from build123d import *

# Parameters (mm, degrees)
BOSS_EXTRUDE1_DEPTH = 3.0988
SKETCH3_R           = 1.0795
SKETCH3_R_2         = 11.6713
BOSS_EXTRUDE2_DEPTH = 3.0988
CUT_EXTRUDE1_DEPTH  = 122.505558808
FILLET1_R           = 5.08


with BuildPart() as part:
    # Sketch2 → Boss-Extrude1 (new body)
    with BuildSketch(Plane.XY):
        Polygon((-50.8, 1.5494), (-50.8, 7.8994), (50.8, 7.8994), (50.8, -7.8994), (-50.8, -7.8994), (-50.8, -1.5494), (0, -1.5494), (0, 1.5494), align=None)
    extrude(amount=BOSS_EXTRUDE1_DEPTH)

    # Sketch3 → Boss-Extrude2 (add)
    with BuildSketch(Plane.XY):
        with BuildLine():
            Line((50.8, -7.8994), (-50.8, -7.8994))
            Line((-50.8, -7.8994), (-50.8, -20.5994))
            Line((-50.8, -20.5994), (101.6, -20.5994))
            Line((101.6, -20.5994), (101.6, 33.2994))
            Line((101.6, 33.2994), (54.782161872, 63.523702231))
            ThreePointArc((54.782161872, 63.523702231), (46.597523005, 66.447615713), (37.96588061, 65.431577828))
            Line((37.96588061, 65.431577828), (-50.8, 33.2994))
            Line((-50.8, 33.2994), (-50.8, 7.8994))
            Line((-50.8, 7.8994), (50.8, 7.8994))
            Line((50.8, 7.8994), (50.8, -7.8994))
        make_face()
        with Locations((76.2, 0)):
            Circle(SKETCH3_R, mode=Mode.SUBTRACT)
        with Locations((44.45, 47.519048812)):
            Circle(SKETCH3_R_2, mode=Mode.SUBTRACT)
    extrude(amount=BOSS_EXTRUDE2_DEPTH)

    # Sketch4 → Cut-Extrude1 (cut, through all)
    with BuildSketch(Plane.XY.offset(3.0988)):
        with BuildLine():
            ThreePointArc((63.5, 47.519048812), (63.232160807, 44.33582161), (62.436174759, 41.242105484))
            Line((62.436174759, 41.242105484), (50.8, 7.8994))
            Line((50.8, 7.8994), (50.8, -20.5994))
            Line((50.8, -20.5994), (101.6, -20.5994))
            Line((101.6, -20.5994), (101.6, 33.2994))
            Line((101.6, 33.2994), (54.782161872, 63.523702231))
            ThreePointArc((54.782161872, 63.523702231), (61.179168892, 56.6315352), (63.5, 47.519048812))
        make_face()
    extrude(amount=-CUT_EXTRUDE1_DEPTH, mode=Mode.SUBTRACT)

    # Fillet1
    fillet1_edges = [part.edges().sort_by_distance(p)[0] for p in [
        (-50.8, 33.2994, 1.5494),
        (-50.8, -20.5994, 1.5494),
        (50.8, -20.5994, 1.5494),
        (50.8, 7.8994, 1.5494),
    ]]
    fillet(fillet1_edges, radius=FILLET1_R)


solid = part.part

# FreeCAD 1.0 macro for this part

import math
import FreeCAD as App
import Part
import Sketcher
Q = App.Units.Quantity


def edges_at(feature, points):
    """Names of the edges that pass closest to the given points."""
    edges = feature.Shape.Edges
    near = lambda p: min(range(len(edges)), key=lambda i: edges[i].distToShape(Part.Vertex(*p))[0])
    return sorted({f"Edge{near(p) + 1}" for p in points})

doc = App.newDocument("Part")
body = doc.addObject("PartDesign::Body", "Body")

# Sketch on XY plane
sketch1 = doc.addObject("Sketcher::SketchObject", "Sketch")
body.addObject(sketch1)
sketch1.AttachmentSupport = (doc.XY_Plane, [""])
sketch1.MapMode = "FlatFace"
sketch1.addGeometry(Part.LineSegment(App.Vector(-50.8, 7.9, 0), App.Vector(-50.8, 1.5, 0)), False)
sketch1.addGeometry(Part.LineSegment(App.Vector(-50.8, 1.5, 0), App.Vector(0, 1.5, 0)), False)
sketch1.addGeometry(Part.LineSegment(App.Vector(0, 1.5, 0), App.Vector(0, -1.5, 0)), False)
sketch1.addGeometry(Part.LineSegment(App.Vector(0, -1.5, 0), App.Vector(-50.8, -1.5, 0)), False)
sketch1.addGeometry(Part.LineSegment(App.Vector(-50.8, -1.5, 0), App.Vector(-50.8, -7.9, 0)), False)
sketch1.addGeometry(Part.LineSegment(App.Vector(-50.8, -7.9, 0), App.Vector(50.8, -7.9, 0)), False)
sketch1.addGeometry(Part.LineSegment(App.Vector(50.8, -7.9, 0), App.Vector(50.8, 7.9, 0)), False)
sketch1.addGeometry(Part.LineSegment(App.Vector(50.8, 7.9, 0), App.Vector(-50.8, 7.9, 0)), False)
sketch1.addConstraint(Sketcher.Constraint("Coincident", 0, 2, 1, 1))
sketch1.addConstraint(Sketcher.Constraint("Coincident", 1, 2, 2, 1))
sketch1.addConstraint(Sketcher.Constraint("Coincident", 2, 2, 3, 1))
sketch1.addConstraint(Sketcher.Constraint("Coincident", 3, 2, 4, 1))
sketch1.addConstraint(Sketcher.Constraint("Coincident", 4, 2, 5, 1))
sketch1.addConstraint(Sketcher.Constraint("Coincident", 5, 2, 6, 1))
sketch1.addConstraint(Sketcher.Constraint("Coincident", 6, 2, 7, 1))
sketch1.addConstraint(Sketcher.Constraint("Coincident", 7, 2, 0, 1))
sketch1.addConstraint(Sketcher.Constraint("Vertical", 0))
sketch1.addConstraint(Sketcher.Constraint("Horizontal", 1))
sketch1.addConstraint(Sketcher.Constraint("Vertical", 2))
sketch1.addConstraint(Sketcher.Constraint("Horizontal", 3))
sketch1.addConstraint(Sketcher.Constraint("Vertical", 4))
sketch1.addConstraint(Sketcher.Constraint("Horizontal", 5))
sketch1.addConstraint(Sketcher.Constraint("Vertical", 6))
sketch1.addConstraint(Sketcher.Constraint("Horizontal", 7))
sketch1.addConstraint(Sketcher.Constraint("Symmetric", 1, 2, 2, 2, -1, 1))
sketch1.addConstraint(Sketcher.Constraint("Symmetric", 4, 2, 6, 2, -1, 1))
sketch1.addConstraint(Sketcher.Constraint("Vertical", 0, 2, 3, 2))
sketch1.addConstraint(Sketcher.Constraint("DistanceX", 1, 1, 1, 2, Q("2 in")))
sketch1.addConstraint(Sketcher.Constraint("DistanceY", 0, 2, 0, 1, Q("0.25 in")))
sketch1.addConstraint(Sketcher.Constraint("DistanceY", 2, 2, 2, 1, Q("0.122 in")))
pad1 = doc.addObject("PartDesign::Pad", "Pad")
body.addObject(pad1)
pad1.Profile = sketch1
pad1.Length = Q("0.122 in")

# Sketch on XY plane
sketch2 = doc.addObject("Sketcher::SketchObject", "Sketch001")
body.addObject(sketch2)
sketch2.AttachmentSupport = (doc.XY_Plane, [""])
sketch2.MapMode = "FlatFace"
sketch2.addGeometry(Part.LineSegment(App.Vector(50.8, -7.9, 0), App.Vector(-50.8, -7.9, 0)), False)
sketch2.addGeometry(Part.LineSegment(App.Vector(-50.8, -7.9, 0), App.Vector(-50.8, -20.6, 0)), False)
sketch2.addGeometry(Part.LineSegment(App.Vector(-50.8, -20.6, 0), App.Vector(101.6, -20.6, 0)), False)
sketch2.addGeometry(Part.LineSegment(App.Vector(101.6, -20.6, 0), App.Vector(101.6, 33.3, 0)), False)
sketch2.addGeometry(Part.LineSegment(App.Vector(101.6, 33.3, 0), App.Vector(54.8, 63.5, 0)), False)
sketch2.addGeometry(Part.ArcOfCircle(Part.Circle(App.Vector(44.4, 47.5, 0), App.Vector(0, 0, 1), 19.1), math.radians(57), math.radians(110)), False)
sketch2.addGeometry(Part.LineSegment(App.Vector(38, 65.4, 0), App.Vector(-50.8, 33.3, 0)), False)
sketch2.addGeometry(Part.LineSegment(App.Vector(-50.8, 33.3, 0), App.Vector(-50.8, 7.9, 0)), False)
sketch2.addGeometry(Part.LineSegment(App.Vector(-50.8, 7.9, 0), App.Vector(50.8, 7.9, 0)), False)
sketch2.addGeometry(Part.LineSegment(App.Vector(50.8, 7.9, 0), App.Vector(50.8, -7.9, 0)), False)
sketch2.addGeometry(Part.Circle(App.Vector(76.2, 0, 0), App.Vector(0, 0, 1), 1.1), False)
sketch2.addGeometry(Part.Circle(App.Vector(44.5, 47.5, 0), App.Vector(0, 0, 1), 11.7), False)
sketch2.addConstraint(Sketcher.Constraint("Coincident", 0, 2, 1, 1))
sketch2.addConstraint(Sketcher.Constraint("Coincident", 1, 2, 2, 1))
sketch2.addConstraint(Sketcher.Constraint("Coincident", 2, 2, 3, 1))
sketch2.addConstraint(Sketcher.Constraint("Coincident", 3, 2, 4, 1))
sketch2.addConstraint(Sketcher.Constraint("Tangent", 4, 2, 5, 1))
sketch2.addConstraint(Sketcher.Constraint("Tangent", 5, 2, 6, 1))
sketch2.addConstraint(Sketcher.Constraint("Coincident", 6, 2, 7, 1))
sketch2.addConstraint(Sketcher.Constraint("Coincident", 7, 2, 8, 1))
sketch2.addConstraint(Sketcher.Constraint("Coincident", 8, 2, 9, 1))
sketch2.addConstraint(Sketcher.Constraint("Coincident", 9, 2, 0, 1))
sketch2.addConstraint(Sketcher.Constraint("Horizontal", 0))
sketch2.addConstraint(Sketcher.Constraint("Vertical", 1))
sketch2.addConstraint(Sketcher.Constraint("Horizontal", 2))
sketch2.addConstraint(Sketcher.Constraint("Vertical", 3))
sketch2.addConstraint(Sketcher.Constraint("Vertical", 7))
sketch2.addConstraint(Sketcher.Constraint("Horizontal", 8))
sketch2.addConstraint(Sketcher.Constraint("Vertical", 9))
sketch2.addConstraint(Sketcher.Constraint("Coincident", 11, 3, 5, 3))
sketch2.addConstraint(Sketcher.Constraint("Symmetric", 0, 2, 8, 2, -1, 1))
sketch2.addConstraint(Sketcher.Constraint("PointOnObject", 10, 3, -1))
sketch2.addConstraint(Sketcher.Constraint("Horizontal", 3, 2, 6, 2))
sketch2.addConstraint(Sketcher.Constraint("Vertical", 1, 2, 6, 2))
sketch2.addConstraint(Sketcher.Constraint("DistanceX", 0, 2, 0, 1, Q("4 in")))
sketch2.addConstraint(Sketcher.Constraint("DistanceX", 2, 1, 2, 2, Q("6 in")))
sketch2.addConstraint(Sketcher.Constraint("DistanceY", 7, 2, 7, 1, Q("1 in")))
sketch2.addConstraint(Sketcher.Constraint("Radius", 5, Q("0.75 in")))
sketch2.addConstraint(Sketcher.Constraint("Diameter", 10, Q("0.085 in")))
sketch2.addConstraint(Sketcher.Constraint("Diameter", 11, Q("0.919 in")))
sketch2.addConstraint(Sketcher.Constraint("DistanceY", 1, 2, 1, 1, Q("0.5 in")))
sketch2.addConstraint(Sketcher.Constraint("DistanceX", -1, 1, 10, 3, Q("3 in")))
sketch2.addConstraint(Sketcher.Constraint("DistanceY", 3, 1, 3, 2, Q("2.122 in")))
sketch2.addConstraint(Sketcher.Constraint("DistanceX", -1, 1, 5, 3, Q("1.75 in")))
sketch2.addConstraint(Sketcher.Constraint("Distance", 4, 55.726281))
pad2 = doc.addObject("PartDesign::Pad", "Pad001")
body.addObject(pad2)
pad2.Profile = sketch2
pad2.Length = Q("0.122 in")

# Sketch on XY plane
sketch3 = doc.addObject("Sketcher::SketchObject", "Sketch002")
body.addObject(sketch3)
sketch3.AttachmentSupport = (doc.XY_Plane, [""])
sketch3.MapMode = "FlatFace"
sketch3.AttachmentOffset = App.Placement(App.Vector(0, 0, 0.122 * 25.4), App.Rotation())
sketch3.addGeometry(Part.ArcOfCircle(Part.Circle(App.Vector(44, 48, 0), App.Vector(0, 0, 1), 19), math.radians(-19.24), math.radians(0)), False)
sketch3.addGeometry(Part.LineSegment(App.Vector(62, 41, 0), App.Vector(51, 8, 0)), False)
sketch3.addGeometry(Part.LineSegment(App.Vector(51, 8, 0), App.Vector(51, -21, 0)), False)
sketch3.addGeometry(Part.LineSegment(App.Vector(51, -21, 0), App.Vector(102, -21, 0)), False)
sketch3.addGeometry(Part.LineSegment(App.Vector(102, -21, 0), App.Vector(102, 33, 0)), False)
sketch3.addGeometry(Part.LineSegment(App.Vector(102, 33, 0), App.Vector(55, 64, 0)), False)
sketch3.addGeometry(Part.ArcOfCircle(Part.Circle(App.Vector(44, 48, 0), App.Vector(0, 0, 1), 19), math.radians(0), math.radians(57)), False)
sketch3.addConstraint(Sketcher.Constraint("Tangent", 0, 1, 1, 1))
sketch3.addConstraint(Sketcher.Constraint("Coincident", 1, 2, 2, 1))
sketch3.addConstraint(Sketcher.Constraint("Coincident", 2, 2, 3, 1))
sketch3.addConstraint(Sketcher.Constraint("Coincident", 3, 2, 4, 1))
sketch3.addConstraint(Sketcher.Constraint("Coincident", 4, 2, 5, 1))
sketch3.addConstraint(Sketcher.Constraint("Tangent", 5, 2, 6, 2))
sketch3.addConstraint(Sketcher.Constraint("Tangent", 6, 1, 0, 2))
sketch3.addConstraint(Sketcher.Constraint("Vertical", 2))
sketch3.addConstraint(Sketcher.Constraint("Horizontal", 3))
sketch3.addConstraint(Sketcher.Constraint("Vertical", 4))
sketch3.addConstraint(Sketcher.Constraint("Equal", 0, 6))
sketch3.addConstraint(Sketcher.Constraint("Horizontal", 0, 3, 6, 1))
sketch3.addConstraint(Sketcher.Constraint("DistanceX", 3, 1, 3, 2, Q("2 in")))
sketch3.addConstraint(Sketcher.Constraint("Radius", 0, Q("0.75 in")))
sketch3.addConstraint(Sketcher.Constraint("DistanceX", -1, 1, 1, 2, Q("2 in")))
sketch3.addConstraint(Sketcher.Constraint("DistanceY", 1, 2, 4, 2, Q("1 in")))
sketch3.addConstraint(Sketcher.Constraint("DistanceX", -1, 1, 6, 1, Q("2.5 in")))
sketch3.addConstraint(Sketcher.Constraint("DistanceY", 2, 2, 2, 1, Q("1.122 in")))
sketch3.addConstraint(Sketcher.Constraint("DistanceY", -1, 1, 1, 2, Q("0.311 in")))
sketch3.addConstraint(Sketcher.Constraint("Distance", 1, 35.314821))
pocket1 = doc.addObject("PartDesign::Pocket", "Pocket")
body.addObject(pocket1)
pocket1.Profile = sketch3
pocket1.Type = "ThroughAll"
doc.recompute()

fillet = doc.addObject("PartDesign::Fillet", "Fillet")
body.addObject(fillet)
fillet.Base = (pocket1, edges_at(pocket1, [
    (-50.8, 33.299, 1.549),
    (-50.8, -20.599, 1.549),
    (50.8, -20.599, 1.549),
    (50.8, 7.899, 1.549),
]))
fillet.Radius = Q("0.2 in")

doc.recompute()
